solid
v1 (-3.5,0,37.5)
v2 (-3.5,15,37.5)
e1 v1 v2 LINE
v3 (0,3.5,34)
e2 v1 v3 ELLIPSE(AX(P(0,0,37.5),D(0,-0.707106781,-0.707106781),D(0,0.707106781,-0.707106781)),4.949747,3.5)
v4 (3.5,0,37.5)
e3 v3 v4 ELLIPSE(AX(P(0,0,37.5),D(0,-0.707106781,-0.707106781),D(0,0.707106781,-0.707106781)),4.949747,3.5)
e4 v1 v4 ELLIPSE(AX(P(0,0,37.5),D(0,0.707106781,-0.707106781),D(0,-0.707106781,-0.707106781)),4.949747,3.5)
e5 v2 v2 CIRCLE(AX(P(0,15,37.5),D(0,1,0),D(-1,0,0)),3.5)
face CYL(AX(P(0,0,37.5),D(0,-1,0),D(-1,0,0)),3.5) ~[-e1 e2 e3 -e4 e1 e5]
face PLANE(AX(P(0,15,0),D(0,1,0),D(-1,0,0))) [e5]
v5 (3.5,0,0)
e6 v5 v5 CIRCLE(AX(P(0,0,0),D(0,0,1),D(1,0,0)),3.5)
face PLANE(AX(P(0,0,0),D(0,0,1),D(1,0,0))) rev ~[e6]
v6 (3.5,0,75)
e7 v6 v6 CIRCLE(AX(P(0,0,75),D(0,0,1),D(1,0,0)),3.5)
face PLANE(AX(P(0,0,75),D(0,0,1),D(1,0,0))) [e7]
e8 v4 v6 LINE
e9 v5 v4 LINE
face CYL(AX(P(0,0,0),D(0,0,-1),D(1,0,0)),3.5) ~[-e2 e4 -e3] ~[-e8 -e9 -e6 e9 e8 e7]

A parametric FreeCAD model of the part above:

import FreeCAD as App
import Part
import Sketcher

doc = App.newDocument("Part")
body = doc.addObject("PartDesign::Body", "Body")

# Sketch on XY plane
sketch1 = doc.addObject("Sketcher::SketchObject", "Sketch")
body.addObject(sketch1)
sketch1.AttachmentSupport = (doc.XY_Plane, [""])
sketch1.MapMode = "FlatFace"
sketch1.addGeometry(Part.Circle(App.Vector(0, 0, 0), App.Vector(0, 0, 1), 3.5), False)
sketch1.addConstraint([
    Sketcher.Constraint("Coincident", 0, 3, -1, 1),
    Sketcher.Constraint("Diameter", 0, 7.0),
])
pad1 = doc.addObject("PartDesign::Pad", "Pad")
body.addObject(pad1)
pad1.Profile = sketch1
pad1.Length = 75

# Sketch on XZ plane
sketch2 = doc.addObject("Sketcher::SketchObject", "Sketch001")
body.addObject(sketch2)
sketch2.AttachmentSupport = (doc.XZ_Plane, [""])
sketch2.MapMode = "FlatFace"
sketch2.addGeometry(Part.Circle(App.Vector(0, 37.5, 0), App.Vector(0, 0, 1), 3.5), False)
sketch2.addConstraint([
    Sketcher.Constraint("PointOnObject", 0, 3, -2),
    Sketcher.Constraint("Diameter", 0, 7.0),
    Sketcher.Constraint("DistanceY", -1, 1, 0, 3, 37.5),
])
pad2 = doc.addObject("PartDesign::Pad", "Pad001")
body.addObject(pad2)
pad2.Profile = sketch2
pad2.Length = 15
pad2.Reversed = True

doc.recompute()
